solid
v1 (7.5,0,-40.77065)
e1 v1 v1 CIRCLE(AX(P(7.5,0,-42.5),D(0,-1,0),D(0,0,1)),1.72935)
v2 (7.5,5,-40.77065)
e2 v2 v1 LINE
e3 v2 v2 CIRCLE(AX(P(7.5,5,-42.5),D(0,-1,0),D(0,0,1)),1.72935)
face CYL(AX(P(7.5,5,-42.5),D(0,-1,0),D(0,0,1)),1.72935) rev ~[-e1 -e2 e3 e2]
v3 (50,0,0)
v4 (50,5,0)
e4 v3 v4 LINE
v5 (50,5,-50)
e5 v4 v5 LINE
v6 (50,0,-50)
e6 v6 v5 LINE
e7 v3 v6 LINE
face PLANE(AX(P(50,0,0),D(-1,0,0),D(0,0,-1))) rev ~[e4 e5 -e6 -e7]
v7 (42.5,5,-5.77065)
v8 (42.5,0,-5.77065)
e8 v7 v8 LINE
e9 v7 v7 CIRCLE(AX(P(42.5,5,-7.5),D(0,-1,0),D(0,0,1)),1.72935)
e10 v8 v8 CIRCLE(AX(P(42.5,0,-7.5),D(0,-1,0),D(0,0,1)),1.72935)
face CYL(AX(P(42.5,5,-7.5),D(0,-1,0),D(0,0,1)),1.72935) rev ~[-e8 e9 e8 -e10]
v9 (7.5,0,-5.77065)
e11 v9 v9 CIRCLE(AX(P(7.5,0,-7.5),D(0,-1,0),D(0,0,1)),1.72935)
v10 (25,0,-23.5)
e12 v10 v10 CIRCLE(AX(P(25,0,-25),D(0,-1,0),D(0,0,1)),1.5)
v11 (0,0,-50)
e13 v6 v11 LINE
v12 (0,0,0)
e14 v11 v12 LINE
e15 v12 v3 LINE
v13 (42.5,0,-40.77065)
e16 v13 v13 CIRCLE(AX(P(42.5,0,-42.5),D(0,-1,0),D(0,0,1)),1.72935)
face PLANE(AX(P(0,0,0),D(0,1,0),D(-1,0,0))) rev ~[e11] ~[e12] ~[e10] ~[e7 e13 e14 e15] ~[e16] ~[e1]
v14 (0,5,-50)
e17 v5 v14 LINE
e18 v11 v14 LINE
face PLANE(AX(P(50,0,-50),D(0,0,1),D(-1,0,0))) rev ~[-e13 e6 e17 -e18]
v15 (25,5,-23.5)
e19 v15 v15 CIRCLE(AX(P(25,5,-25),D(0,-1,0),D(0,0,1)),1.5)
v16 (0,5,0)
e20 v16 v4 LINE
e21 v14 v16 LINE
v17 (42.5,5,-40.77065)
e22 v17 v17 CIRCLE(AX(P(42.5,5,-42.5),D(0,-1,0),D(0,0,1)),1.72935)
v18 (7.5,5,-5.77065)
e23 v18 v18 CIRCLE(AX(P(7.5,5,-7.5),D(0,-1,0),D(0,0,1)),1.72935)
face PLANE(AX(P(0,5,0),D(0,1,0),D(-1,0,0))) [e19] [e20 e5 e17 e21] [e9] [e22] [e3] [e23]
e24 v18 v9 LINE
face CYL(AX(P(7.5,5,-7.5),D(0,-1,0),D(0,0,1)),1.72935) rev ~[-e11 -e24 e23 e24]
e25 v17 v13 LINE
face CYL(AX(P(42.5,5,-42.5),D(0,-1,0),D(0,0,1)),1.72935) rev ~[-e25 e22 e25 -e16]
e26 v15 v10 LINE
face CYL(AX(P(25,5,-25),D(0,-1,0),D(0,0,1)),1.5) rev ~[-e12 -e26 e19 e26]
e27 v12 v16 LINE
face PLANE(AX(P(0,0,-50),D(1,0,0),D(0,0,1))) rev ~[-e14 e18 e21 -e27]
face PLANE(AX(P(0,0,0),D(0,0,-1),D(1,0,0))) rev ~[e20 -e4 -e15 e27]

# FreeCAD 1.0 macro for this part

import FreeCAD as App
import Part
import Sketcher

V = App.Vector


def add_polygon(sketch, points):
    """Adds a closed chain of lines whose ends are joined by coincident constraints."""
    first, n = sketch.GeometryCount, len(points)
    for a, b in zip(points, points[1:] + points[:1]):
        sketch.addGeometry(Part.LineSegment(App.Vector(*a, 0), App.Vector(*b, 0)), False)
    for i in range(n):
        sketch.addConstraint(Sketcher.Constraint("Coincident", first + i, 2, first + (i + 1) % n, 1))

doc = App.newDocument("Part")
body = doc.addObject("PartDesign::Body", "Body")

sketch1 = body.newObject("Sketcher::SketchObject", "Sketch")
sketch1.AttachmentSupport = (doc.getObject("XZ_Plane"), [""])
sketch1.MapMode = "FlatFace"
add_polygon(sketch1, [(0, -50), (0, 0), (50, 0), (50, -50)])
sketch1.addConstraint([
    Sketcher.Constraint("Vertical", 0),
    Sketcher.Constraint("Horizontal", 1),
    Sketcher.Constraint("Vertical", 2),
    Sketcher.Constraint("Horizontal", 3),
    Sketcher.Constraint("Coincident", 0, 2, -1, 1),
    Sketcher.Constraint("Equal", 3, 0),
    Sketcher.Constraint("DistanceX", 1, 1, 1, 2, 50.0),
])
pad1 = body.newObject("PartDesign::Pad", "Pad")
pad1.Profile = sketch1
pad1.Length = 5
pad1.Reversed = True

sketch2 = body.newObject("Sketcher::SketchObject", "Sketch001")
sketch2.AttachmentSupport = (doc.getObject("XZ_Plane"), [""])
sketch2.MapMode = "FlatFace"
sketch2.AttachmentOffset = App.Placement(V(0, 0, -5), App.Rotation())
sketch2.addGeometry([
    Part.Circle(V(7.5, -7.5, 0), V(0, 0, 1), 1.7),
    Part.Circle(V(7.5, -42.5, 0), V(0, 0, 1), 1.7),
    Part.Circle(V(42.5, -42.5, 0), V(0, 0, 1), 1.7),
    Part.Circle(V(42.5, -7.5, 0), V(0, 0, 1), 1.7),
], False)
sketch2.addConstraint([
    Sketcher.Constraint("Equal", 0, 1),
    Sketcher.Constraint("Equal", 1, 2),
    Sketcher.Constraint("Equal", 2, 3),
    Sketcher.Constraint("Horizontal", 1, 3, 2, 3),
    Sketcher.Constraint("Horizontal", 0, 3, 3, 3),
    Sketcher.Constraint("Vertical", 0, 3, 1, 3),
    Sketcher.Constraint("Vertical", 2, 3, 3, 3),
    Sketcher.Constraint("DistanceY", 1, 3, 0, 3, 35.0),
    Sketcher.Constraint("DistanceX", 1, 3, 2, 3, 35.0),
    Sketcher.Constraint("Diameter", 0, 3.4587),
    Sketcher.Constraint("DistanceX", -1, 1, 0, 3, 7.5),
    Sketcher.Constraint("DistanceY", 0, 3, -1, 1, 7.5),
])
doc.recompute()
hole = body.newObject("PartDesign::Hole", "Hole")
hole.Profile = sketch2
hole.ThreadType = "None"
hole.Diameter = 3.4587
hole.DepthType = "ThroughAll"
hole.Reversed = True

sketch3 = body.newObject("Sketcher::SketchObject", "Sketch002")
sketch3.AttachmentSupport = (doc.getObject("XZ_Plane"), [""])
sketch3.MapMode = "FlatFace"
sketch3.AttachmentOffset = App.Placement(V(0, 0, -5), App.Rotation())
sketch3.addGeometry(Part.Circle(V(25, -25, 0), V(0, 0, 1), 1.5), False)
sketch3.addConstraint([
    Sketcher.Constraint("Diameter", 0, 3.0),
    Sketcher.Constraint("DistanceX", -1, 1, 0, 3, 25.0),
    Sketcher.Constraint("DistanceY", 0, 3, -1, 1, 25.0),
])
doc.recompute()
hole2 = body.newObject("PartDesign::Hole", "Hole001")
hole2.Profile = sketch3
hole2.ThreadType = "None"
hole2.Diameter = 3
hole2.DepthType = "ThroughAll"
hole2.Reversed = True

doc.recompute()
